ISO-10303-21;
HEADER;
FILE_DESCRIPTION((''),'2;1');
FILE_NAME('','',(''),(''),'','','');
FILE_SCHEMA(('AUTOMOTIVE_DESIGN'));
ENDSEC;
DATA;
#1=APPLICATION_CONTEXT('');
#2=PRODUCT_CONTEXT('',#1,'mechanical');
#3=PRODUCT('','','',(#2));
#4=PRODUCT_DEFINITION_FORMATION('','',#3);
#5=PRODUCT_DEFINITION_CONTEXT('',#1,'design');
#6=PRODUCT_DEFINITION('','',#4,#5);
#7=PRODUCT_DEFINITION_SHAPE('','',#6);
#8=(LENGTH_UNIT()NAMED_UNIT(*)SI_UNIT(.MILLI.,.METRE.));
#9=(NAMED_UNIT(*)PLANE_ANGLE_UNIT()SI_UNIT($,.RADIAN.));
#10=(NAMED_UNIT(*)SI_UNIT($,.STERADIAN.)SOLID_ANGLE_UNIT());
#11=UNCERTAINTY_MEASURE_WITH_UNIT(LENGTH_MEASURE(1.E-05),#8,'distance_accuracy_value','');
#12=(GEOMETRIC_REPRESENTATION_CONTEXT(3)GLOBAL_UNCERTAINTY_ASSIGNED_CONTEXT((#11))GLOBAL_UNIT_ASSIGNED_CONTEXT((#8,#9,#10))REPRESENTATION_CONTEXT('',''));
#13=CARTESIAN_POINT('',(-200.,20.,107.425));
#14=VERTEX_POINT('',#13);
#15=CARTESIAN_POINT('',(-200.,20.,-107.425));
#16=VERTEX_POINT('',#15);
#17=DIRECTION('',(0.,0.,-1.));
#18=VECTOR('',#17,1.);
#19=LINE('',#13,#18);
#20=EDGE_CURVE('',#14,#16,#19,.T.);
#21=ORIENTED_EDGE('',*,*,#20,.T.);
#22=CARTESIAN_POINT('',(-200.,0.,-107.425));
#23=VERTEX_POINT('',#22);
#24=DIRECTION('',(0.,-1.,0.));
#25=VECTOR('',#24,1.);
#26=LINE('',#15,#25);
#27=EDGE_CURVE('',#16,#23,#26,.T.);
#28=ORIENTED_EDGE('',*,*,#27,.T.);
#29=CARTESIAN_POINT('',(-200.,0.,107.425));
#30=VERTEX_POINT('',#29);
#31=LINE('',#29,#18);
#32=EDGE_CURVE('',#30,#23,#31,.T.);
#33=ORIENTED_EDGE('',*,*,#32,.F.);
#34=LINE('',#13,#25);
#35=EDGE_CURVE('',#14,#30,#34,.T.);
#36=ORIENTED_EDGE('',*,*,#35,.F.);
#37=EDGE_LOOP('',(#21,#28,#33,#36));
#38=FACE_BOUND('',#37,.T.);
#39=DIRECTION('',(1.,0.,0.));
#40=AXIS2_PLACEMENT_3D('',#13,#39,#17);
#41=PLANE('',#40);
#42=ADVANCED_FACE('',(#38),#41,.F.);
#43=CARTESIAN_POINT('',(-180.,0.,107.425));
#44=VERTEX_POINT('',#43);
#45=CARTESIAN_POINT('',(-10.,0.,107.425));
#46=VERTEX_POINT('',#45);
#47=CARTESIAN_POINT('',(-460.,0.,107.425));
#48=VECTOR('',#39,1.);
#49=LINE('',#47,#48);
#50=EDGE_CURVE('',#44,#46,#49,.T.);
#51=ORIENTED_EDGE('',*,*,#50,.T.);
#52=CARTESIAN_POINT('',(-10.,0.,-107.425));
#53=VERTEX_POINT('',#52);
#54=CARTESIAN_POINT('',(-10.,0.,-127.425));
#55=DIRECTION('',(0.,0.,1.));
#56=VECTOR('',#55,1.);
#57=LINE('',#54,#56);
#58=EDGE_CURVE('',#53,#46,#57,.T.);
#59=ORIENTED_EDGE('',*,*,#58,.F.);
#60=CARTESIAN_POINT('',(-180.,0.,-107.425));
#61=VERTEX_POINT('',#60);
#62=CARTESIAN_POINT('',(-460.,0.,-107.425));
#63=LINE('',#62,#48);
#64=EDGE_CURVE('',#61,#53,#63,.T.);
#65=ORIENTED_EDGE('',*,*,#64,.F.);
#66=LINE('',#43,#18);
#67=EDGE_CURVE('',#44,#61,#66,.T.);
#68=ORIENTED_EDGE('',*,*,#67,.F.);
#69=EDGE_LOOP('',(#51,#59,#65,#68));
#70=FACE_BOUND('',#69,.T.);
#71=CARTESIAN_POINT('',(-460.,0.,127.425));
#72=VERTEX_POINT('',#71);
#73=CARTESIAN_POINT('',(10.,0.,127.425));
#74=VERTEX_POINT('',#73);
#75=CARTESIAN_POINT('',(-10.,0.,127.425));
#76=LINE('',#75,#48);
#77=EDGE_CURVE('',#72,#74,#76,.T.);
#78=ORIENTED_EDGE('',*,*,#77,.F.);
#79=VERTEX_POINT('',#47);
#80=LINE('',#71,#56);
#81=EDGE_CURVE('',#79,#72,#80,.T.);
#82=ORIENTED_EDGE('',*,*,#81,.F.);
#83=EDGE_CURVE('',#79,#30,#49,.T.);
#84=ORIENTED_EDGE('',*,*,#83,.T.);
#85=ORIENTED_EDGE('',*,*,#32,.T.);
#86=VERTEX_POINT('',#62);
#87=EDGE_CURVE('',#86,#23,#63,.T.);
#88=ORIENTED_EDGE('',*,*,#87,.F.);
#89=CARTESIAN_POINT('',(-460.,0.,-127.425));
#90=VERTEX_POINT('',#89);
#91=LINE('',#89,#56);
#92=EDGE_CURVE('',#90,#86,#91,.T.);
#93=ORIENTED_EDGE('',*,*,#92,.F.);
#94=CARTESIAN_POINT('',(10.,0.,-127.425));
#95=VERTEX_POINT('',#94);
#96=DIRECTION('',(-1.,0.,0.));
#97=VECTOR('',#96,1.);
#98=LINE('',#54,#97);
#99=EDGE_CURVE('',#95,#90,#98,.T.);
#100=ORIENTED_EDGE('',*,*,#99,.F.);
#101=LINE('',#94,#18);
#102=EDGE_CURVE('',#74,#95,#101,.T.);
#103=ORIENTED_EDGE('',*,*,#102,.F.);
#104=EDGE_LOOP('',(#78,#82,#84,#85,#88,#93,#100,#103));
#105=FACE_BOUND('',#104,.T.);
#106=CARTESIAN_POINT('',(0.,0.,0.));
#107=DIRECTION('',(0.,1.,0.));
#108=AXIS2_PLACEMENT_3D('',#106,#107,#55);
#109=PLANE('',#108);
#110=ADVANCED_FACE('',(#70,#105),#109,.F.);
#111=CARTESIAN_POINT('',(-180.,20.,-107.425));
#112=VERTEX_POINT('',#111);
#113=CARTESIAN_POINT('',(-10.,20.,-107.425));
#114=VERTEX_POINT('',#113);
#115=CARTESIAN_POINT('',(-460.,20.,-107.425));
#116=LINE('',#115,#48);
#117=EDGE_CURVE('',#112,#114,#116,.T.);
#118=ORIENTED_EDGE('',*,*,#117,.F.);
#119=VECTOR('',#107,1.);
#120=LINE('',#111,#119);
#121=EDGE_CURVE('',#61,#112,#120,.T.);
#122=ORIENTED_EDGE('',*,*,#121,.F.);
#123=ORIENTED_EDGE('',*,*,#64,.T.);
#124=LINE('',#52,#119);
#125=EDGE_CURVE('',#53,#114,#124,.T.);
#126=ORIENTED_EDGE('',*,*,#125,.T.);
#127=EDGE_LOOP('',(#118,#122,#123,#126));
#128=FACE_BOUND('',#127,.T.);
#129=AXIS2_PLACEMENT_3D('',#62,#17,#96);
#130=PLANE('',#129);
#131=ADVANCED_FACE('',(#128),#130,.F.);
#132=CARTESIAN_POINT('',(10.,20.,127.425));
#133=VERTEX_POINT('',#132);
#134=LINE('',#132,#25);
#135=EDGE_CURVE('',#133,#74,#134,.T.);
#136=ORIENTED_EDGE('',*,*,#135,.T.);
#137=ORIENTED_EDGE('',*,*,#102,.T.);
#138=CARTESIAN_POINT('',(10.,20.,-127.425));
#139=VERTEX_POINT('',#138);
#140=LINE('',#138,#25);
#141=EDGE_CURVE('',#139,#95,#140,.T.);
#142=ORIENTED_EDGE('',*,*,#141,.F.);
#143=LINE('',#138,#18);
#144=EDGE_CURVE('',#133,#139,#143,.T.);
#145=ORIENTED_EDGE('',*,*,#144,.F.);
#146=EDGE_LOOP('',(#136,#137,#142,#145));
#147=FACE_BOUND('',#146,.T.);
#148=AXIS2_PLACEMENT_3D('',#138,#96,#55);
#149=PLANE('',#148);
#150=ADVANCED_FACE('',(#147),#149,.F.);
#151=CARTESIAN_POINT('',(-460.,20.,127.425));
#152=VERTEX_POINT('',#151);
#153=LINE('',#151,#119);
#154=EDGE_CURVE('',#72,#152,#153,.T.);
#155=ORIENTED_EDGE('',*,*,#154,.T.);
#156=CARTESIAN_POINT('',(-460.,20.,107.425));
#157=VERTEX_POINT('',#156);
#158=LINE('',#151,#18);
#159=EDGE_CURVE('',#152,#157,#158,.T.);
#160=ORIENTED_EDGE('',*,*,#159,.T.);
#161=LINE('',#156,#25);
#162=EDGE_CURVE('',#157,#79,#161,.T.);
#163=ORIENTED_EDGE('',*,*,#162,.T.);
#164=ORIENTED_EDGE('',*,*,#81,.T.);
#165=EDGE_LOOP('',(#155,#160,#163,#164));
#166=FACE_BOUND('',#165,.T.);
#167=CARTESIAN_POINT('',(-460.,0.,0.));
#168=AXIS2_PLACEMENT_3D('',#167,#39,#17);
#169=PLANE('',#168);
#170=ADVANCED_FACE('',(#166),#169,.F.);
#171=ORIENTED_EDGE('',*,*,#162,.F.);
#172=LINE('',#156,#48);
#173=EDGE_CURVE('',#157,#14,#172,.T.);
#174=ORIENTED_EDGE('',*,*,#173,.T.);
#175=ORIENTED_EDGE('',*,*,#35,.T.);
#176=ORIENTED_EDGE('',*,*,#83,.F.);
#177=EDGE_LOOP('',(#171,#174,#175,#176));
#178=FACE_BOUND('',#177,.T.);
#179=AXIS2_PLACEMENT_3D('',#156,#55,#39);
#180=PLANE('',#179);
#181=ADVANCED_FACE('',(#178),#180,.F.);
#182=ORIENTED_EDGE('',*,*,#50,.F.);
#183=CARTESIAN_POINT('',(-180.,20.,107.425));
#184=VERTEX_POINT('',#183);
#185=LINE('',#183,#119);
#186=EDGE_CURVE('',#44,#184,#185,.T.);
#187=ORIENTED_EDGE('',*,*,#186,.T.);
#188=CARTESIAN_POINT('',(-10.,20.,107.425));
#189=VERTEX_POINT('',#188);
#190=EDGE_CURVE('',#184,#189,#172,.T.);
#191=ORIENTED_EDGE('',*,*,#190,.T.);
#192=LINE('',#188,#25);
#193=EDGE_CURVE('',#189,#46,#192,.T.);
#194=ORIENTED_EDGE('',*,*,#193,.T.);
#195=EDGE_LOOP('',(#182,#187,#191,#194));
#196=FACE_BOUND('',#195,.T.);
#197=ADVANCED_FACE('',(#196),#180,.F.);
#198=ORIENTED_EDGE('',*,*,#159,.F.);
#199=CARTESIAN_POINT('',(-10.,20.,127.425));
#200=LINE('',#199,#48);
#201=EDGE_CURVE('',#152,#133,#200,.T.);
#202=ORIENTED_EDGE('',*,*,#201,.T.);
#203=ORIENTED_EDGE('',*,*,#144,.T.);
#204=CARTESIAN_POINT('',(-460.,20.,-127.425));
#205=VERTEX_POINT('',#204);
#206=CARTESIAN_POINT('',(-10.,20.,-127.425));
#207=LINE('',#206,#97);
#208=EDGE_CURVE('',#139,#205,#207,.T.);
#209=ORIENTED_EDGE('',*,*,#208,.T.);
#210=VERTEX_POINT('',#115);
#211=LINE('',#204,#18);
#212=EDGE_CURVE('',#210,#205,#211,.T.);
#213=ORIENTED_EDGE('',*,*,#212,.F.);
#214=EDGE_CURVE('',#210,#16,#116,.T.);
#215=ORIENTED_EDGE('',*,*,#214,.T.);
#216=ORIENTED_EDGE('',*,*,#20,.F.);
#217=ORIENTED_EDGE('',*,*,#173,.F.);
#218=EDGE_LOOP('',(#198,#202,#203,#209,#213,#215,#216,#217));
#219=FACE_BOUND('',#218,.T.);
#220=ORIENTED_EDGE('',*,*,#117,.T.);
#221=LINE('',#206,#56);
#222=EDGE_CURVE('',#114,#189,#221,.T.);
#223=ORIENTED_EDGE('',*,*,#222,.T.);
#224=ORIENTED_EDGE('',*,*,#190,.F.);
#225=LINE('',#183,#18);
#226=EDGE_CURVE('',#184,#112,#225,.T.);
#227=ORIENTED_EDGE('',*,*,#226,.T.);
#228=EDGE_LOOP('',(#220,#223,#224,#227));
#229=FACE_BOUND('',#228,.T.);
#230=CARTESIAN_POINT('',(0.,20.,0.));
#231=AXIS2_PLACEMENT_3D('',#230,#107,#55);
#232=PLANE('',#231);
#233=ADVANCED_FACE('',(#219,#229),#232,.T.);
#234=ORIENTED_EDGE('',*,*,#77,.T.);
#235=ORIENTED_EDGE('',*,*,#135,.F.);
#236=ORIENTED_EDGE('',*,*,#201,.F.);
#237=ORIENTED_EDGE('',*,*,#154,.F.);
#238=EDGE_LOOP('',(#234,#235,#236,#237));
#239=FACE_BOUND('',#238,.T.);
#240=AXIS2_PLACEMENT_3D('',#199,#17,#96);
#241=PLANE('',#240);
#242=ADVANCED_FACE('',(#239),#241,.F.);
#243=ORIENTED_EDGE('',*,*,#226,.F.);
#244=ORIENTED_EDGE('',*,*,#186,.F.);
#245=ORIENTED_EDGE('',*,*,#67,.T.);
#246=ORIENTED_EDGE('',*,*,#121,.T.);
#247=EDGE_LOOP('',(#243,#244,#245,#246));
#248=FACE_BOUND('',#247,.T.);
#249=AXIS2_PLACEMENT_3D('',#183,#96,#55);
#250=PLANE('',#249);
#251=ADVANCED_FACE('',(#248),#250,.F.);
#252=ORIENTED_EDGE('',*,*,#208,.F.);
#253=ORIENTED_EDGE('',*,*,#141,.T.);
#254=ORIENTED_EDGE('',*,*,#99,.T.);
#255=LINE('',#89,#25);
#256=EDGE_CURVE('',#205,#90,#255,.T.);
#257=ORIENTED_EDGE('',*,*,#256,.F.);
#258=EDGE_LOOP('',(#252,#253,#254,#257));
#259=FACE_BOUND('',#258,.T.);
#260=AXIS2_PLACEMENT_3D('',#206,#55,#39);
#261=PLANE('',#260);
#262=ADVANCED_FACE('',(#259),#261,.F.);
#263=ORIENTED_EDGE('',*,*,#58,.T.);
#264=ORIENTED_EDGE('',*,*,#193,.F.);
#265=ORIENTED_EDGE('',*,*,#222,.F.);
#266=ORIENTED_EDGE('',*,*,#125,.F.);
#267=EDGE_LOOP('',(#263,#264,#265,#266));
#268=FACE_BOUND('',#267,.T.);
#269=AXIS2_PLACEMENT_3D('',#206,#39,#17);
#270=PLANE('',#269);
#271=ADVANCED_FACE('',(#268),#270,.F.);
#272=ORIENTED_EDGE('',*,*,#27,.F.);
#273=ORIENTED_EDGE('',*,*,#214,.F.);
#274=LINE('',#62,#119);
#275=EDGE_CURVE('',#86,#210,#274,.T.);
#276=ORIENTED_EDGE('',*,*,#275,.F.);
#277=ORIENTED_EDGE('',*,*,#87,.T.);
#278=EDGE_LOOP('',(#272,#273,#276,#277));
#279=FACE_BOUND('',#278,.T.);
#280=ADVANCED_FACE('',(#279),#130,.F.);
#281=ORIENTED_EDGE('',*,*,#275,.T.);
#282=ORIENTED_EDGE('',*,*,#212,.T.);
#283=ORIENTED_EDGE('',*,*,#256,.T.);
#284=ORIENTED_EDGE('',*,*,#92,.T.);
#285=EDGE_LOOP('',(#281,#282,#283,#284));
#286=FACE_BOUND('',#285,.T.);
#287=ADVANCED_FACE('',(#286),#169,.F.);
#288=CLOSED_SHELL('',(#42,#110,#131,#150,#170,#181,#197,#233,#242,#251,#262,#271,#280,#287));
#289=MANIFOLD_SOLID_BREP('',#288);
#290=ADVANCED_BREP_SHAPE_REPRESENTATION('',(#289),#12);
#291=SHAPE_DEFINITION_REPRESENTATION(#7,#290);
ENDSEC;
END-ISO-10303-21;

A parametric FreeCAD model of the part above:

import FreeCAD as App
import Part
import Sketcher
from FreeCAD import Vector

doc = App.newDocument("Part")
params = doc.addObject("Spreadsheet::Sheet", "Params")
for row, (alias, value) in enumerate([
    ("sketch1_width", "20 mm"),
    ("sketch1_height", "254.85 mm"),
    ("pad1_length", "20 mm"),
    ("sketch2_width", "20 mm"),
    ("pad2_length", "450 mm"),
    ("sketch3_width", "20 mm"),
    ("pad3_length", "214.85 mm"),
], start=1):
    params.set(f"A{row}", alias)
    params.set(f"B{row}", "=" + value)
    params.setAlias(f"B{row}", alias)

body = doc.addObject("PartDesign::Body", "Body")

# Sketch on XZ plane
sketch1 = doc.addObject("Sketcher::SketchObject", "Sketch")
body.addObject(sketch1)
sketch1.AttachmentSupport = (doc.XZ_Plane, [""])
sketch1.MapMode = "FlatFace"
sketch1.addGeometry([
    Part.LineSegment(Vector(-10, -127, 0), Vector(-10, 127, 0)),
    Part.LineSegment(Vector(-10, 127, 0), Vector(10, 127, 0)),
    Part.LineSegment(Vector(10, 127, 0), Vector(10, -127, 0)),
    Part.LineSegment(Vector(10, -127, 0), Vector(-10, -127, 0)),
], False)
sketch1.addConstraint([
    Sketcher.Constraint("Coincident", 0, 2, 1, 1),
    Sketcher.Constraint("Coincident", 1, 2, 2, 1),
    Sketcher.Constraint("Coincident", 2, 2, 3, 1),
    Sketcher.Constraint("Coincident", 3, 2, 0, 1),
    Sketcher.Constraint("Vertical", 0),
    Sketcher.Constraint("Horizontal", 1),
    Sketcher.Constraint("Vertical", 2),
    Sketcher.Constraint("Horizontal", 3),
    Sketcher.Constraint("Symmetric", 0, 2, 2, 2, -1, 1),
    Sketcher.Constraint("DistanceX", 1, 1, 1, 2, 20.0),
    Sketcher.Constraint("DistanceY", 0, 1, 0, 2, 254.85),
])
sketch1.setExpression("Constraints[9]", "Params.sketch1_width")
sketch1.setExpression("Constraints[10]", "Params.sketch1_height")
pad1 = doc.addObject("PartDesign::Pad", "Pad")
body.addObject(pad1)
pad1.Profile = sketch1
pad1.setExpression("Length", "Params.pad1_length")
pad1.Reversed = True

# Sketch on YZ plane
sketch2 = doc.addObject("Sketcher::SketchObject", "Sketch001")
body.addObject(sketch2)
sketch2.AttachmentSupport = (doc.YZ_Plane, [""])
sketch2.MapMode = "FlatFace"
sketch2.AttachmentOffset = App.Placement(Vector(0, 0, -10), App.Rotation())
sketch2.addGeometry([
    Part.LineSegment(Vector(20, 107, 0), Vector(0, 107, 0)),  # 0
    Part.LineSegment(Vector(0, 107, 0), Vector(0, 127, 0)),  # 1
    Part.LineSegment(Vector(0, 127, 0), Vector(20, 127, 0)),  # 2
    Part.LineSegment(Vector(20, 127, 0), Vector(20, 107, 0)),  # 3
    Part.LineSegment(Vector(20, -127, 0), Vector(0, -127, 0)),  # 4
    Part.LineSegment(Vector(0, -127, 0), Vector(0, -107, 0)),  # 5
    Part.LineSegment(Vector(0, -107, 0), Vector(20, -107, 0)),  # 6
    Part.LineSegment(Vector(20, -107, 0), Vector(20, -127, 0)),  # 7
], False)
sketch2.addConstraint([
    Sketcher.Constraint("Coincident", 0, 2, 1, 1),
    Sketcher.Constraint("Coincident", 1, 2, 2, 1),
    Sketcher.Constraint("Coincident", 2, 2, 3, 1),
    Sketcher.Constraint("Coincident", 3, 2, 0, 1),
    Sketcher.Constraint("Coincident", 4, 2, 5, 1),
    Sketcher.Constraint("Coincident", 5, 2, 6, 1),
    Sketcher.Constraint("Coincident", 6, 2, 7, 1),
    Sketcher.Constraint("Coincident", 7, 2, 4, 1),
    Sketcher.Constraint("Horizontal", 0),
    Sketcher.Constraint("Vertical", 1),
    Sketcher.Constraint("Horizontal", 2),
    Sketcher.Constraint("Vertical", 3),
    Sketcher.Constraint("Horizontal", 4),
    Sketcher.Constraint("Vertical", 5),
    Sketcher.Constraint("Horizontal", 6),
    Sketcher.Constraint("Vertical", 7),
    Sketcher.Constraint("Symmetric", 1, 2, 4, 2, -1, 1),
    Sketcher.Constraint("Symmetric", 0, 2, 5, 2, -1),
    Sketcher.Constraint("Vertical", 3, 2, 6, 2),
    Sketcher.Constraint("Equal", 6, 1),
    Sketcher.Constraint("DistanceX", 0, 2, 0, 1, 20.0),
    Sketcher.Constraint("DistanceY", 4, 2, 0, 2, 234.85),
])
sketch2.setExpression("Constraints[20]", "Params.sketch2_width")
pad2 = doc.addObject("PartDesign::Pad", "Pad001")
body.addObject(pad2)
pad2.Profile = sketch2
pad2.setExpression("Length", "Params.pad2_length")
pad2.Reversed = True

# Sketch on XY plane
sketch3 = doc.addObject("Sketcher::SketchObject", "Sketch002")
body.addObject(sketch3)
sketch3.AttachmentSupport = (doc.XY_Plane, [""])
sketch3.MapMode = "FlatFace"
sketch3.AttachmentOffset = App.Placement(Vector(0, 0, -107.425), App.Rotation())
sketch3.addGeometry([
    Part.LineSegment(Vector(-200, 20, 0), Vector(-200, 0, 0)),
    Part.LineSegment(Vector(-200, 0, 0), Vector(-180, 0, 0)),
    Part.LineSegment(Vector(-180, 0, 0), Vector(-180, 20, 0)),
    Part.LineSegment(Vector(-180, 20, 0), Vector(-200, 20, 0)),
], False)
sketch3.addConstraint([
    Sketcher.Constraint("Coincident", 0, 2, 1, 1),
    Sketcher.Constraint("Coincident", 1, 2, 2, 1),
    Sketcher.Constraint("Coincident", 2, 2, 3, 1),
    Sketcher.Constraint("Coincident", 3, 2, 0, 1),
    Sketcher.Constraint("Vertical", 0),
    Sketcher.Constraint("Horizontal", 1),
    Sketcher.Constraint("Vertical", 2),
    Sketcher.Constraint("Horizontal", 3),
    Sketcher.Constraint("PointOnObject", 0, 2, -1),
    Sketcher.Constraint("Equal", 3, 0),
    Sketcher.Constraint("DistanceX", 1, 1, 1, 2, 20.0),
    Sketcher.Constraint("DistanceX", 0, 2, -1, 1, 200.0),
])
sketch3.setExpression("Constraints[10]", "Params.sketch3_width")
pad3 = doc.addObject("PartDesign::Pad", "Pad002")
body.addObject(pad3)
pad3.Profile = sketch3
pad3.setExpression("Length", "Params.pad3_length")

doc.recompute()
